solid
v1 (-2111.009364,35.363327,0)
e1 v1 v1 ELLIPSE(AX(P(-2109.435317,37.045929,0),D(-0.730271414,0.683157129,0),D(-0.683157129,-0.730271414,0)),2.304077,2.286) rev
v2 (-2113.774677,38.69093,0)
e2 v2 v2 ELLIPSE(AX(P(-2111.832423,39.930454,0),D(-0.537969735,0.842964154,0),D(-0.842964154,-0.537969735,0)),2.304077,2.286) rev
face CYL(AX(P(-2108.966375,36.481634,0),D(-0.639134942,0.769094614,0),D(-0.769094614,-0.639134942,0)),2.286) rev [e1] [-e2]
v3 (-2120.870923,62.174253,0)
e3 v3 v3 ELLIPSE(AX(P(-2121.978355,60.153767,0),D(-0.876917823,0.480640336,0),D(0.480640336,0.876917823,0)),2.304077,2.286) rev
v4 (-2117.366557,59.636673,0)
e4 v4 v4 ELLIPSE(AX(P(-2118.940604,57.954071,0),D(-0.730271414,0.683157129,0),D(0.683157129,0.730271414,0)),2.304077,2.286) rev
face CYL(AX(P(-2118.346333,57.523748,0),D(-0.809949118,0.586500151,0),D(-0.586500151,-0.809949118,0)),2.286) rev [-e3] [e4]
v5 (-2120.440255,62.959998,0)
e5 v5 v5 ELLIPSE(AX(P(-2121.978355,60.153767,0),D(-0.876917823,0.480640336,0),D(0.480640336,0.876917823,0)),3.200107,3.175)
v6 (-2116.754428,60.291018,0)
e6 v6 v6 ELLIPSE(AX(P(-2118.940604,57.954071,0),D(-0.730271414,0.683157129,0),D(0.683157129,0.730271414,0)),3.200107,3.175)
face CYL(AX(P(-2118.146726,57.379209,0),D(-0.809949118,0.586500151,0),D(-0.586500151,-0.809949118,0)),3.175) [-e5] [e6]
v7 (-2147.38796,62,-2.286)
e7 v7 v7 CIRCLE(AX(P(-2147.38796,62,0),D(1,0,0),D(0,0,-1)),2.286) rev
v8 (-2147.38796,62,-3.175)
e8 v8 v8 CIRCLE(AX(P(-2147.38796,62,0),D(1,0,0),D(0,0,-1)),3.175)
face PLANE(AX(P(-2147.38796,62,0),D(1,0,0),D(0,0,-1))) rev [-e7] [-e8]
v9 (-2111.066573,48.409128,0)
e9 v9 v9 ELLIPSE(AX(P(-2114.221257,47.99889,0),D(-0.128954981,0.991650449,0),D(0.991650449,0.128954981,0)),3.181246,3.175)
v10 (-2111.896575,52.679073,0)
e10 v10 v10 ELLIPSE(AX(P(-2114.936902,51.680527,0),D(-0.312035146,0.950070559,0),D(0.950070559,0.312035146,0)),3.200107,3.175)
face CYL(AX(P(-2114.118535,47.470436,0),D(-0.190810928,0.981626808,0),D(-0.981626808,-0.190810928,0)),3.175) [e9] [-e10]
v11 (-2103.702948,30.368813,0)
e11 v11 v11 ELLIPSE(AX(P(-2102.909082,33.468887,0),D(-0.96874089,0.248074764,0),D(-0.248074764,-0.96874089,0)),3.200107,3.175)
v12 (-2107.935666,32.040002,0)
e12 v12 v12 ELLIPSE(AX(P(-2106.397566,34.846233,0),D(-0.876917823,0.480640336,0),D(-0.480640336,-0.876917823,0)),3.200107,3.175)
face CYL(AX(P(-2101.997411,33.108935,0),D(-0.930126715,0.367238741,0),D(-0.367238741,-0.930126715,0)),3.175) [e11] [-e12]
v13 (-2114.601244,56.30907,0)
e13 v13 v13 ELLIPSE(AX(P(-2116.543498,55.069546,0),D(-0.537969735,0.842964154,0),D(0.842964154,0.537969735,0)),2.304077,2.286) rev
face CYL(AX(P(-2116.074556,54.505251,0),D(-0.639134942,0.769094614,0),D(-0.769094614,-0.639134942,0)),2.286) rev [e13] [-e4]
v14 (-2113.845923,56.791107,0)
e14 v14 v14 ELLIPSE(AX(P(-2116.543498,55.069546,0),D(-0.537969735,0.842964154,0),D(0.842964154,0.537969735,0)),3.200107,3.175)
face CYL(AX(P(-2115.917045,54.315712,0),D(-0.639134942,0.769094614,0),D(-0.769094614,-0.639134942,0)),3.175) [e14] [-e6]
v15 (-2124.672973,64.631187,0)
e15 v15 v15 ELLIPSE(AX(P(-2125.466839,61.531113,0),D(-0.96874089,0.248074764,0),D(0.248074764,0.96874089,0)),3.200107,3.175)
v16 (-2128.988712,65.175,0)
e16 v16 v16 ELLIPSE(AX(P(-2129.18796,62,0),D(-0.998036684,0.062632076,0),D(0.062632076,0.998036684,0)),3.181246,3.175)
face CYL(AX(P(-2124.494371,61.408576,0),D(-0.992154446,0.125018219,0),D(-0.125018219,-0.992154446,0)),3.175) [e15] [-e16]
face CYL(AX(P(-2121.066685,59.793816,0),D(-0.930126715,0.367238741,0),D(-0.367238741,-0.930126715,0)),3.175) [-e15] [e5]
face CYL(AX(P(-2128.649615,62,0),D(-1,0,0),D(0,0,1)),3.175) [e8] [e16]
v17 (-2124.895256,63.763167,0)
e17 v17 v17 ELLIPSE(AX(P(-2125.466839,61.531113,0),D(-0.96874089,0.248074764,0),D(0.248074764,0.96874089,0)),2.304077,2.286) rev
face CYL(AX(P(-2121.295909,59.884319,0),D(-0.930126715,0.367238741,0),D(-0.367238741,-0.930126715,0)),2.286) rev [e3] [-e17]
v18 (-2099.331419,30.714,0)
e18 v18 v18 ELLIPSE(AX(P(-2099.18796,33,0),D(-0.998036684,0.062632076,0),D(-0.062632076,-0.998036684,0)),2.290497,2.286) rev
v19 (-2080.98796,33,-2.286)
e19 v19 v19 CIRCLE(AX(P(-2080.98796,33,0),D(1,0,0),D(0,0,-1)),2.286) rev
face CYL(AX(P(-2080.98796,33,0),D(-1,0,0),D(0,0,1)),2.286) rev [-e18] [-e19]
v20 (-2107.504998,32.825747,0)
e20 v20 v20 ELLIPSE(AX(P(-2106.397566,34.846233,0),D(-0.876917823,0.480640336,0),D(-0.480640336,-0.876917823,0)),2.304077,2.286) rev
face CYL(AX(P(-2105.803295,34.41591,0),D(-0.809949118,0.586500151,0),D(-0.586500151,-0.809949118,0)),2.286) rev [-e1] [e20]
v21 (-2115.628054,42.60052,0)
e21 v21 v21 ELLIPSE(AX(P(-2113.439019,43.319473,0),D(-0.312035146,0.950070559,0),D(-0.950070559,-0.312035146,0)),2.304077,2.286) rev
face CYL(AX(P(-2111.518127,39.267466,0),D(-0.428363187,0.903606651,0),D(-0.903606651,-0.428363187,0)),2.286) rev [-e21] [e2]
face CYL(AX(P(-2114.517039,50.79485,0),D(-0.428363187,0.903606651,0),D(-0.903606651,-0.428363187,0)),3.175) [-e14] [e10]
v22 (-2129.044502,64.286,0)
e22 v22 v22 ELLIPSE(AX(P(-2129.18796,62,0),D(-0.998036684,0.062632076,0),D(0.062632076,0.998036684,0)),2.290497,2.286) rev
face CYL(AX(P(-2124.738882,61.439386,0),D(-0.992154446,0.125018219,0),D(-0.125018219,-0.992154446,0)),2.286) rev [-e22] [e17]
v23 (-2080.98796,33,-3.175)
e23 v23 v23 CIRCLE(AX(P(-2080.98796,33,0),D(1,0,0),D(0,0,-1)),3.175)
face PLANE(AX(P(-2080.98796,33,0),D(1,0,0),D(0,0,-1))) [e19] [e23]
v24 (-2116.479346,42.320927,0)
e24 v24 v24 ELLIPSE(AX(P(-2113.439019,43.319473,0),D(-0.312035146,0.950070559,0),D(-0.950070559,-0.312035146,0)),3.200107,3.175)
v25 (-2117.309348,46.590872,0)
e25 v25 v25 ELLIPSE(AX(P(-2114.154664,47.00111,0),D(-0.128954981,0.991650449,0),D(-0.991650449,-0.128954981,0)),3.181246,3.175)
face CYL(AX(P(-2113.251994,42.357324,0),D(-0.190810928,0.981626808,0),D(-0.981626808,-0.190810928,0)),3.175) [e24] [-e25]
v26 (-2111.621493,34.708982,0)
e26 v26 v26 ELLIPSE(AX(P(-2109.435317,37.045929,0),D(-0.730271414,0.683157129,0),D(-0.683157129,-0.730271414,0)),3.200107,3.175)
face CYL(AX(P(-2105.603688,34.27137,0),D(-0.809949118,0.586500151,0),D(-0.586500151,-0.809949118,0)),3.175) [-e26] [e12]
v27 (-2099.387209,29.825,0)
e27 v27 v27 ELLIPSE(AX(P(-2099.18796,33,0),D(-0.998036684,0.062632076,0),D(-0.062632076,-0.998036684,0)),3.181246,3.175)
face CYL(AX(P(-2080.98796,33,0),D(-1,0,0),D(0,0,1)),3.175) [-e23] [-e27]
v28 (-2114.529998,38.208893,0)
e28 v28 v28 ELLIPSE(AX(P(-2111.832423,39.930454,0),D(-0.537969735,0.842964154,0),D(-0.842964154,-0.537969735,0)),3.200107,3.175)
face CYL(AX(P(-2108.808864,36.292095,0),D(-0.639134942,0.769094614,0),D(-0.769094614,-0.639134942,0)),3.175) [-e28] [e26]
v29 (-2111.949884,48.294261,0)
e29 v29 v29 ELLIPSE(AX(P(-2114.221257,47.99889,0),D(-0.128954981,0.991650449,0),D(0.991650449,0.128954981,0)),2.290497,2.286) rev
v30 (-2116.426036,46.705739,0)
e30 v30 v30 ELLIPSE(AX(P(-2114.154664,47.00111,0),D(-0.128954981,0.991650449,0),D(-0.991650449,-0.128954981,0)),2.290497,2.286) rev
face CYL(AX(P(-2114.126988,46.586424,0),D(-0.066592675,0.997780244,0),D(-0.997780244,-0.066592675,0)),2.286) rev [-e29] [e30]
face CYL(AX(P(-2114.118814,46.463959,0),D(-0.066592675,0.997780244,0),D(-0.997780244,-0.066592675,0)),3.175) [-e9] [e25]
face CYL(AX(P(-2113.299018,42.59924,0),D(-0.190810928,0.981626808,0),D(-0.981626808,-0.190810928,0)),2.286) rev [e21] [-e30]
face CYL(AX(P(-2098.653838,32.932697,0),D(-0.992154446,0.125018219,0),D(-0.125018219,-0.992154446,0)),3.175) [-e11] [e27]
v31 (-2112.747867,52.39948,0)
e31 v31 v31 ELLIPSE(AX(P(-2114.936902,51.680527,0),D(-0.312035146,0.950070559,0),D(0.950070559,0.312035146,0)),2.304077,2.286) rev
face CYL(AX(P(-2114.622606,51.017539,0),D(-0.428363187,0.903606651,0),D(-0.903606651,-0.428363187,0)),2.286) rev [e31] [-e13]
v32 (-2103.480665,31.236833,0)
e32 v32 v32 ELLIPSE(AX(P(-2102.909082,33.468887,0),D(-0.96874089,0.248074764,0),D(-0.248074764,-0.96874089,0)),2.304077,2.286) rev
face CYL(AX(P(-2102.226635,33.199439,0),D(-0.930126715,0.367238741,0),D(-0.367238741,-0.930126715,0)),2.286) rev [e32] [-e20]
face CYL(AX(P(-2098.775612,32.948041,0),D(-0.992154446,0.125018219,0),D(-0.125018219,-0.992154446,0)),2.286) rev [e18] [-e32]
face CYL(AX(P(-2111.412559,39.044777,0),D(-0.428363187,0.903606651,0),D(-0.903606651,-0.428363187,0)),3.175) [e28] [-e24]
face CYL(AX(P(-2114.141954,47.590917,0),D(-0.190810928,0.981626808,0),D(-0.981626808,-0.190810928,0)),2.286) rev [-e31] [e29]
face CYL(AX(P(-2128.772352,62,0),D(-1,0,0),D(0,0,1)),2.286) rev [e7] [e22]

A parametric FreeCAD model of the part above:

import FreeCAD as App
import Part
import Sketcher
from FreeCAD import Vector
Q = App.Units.Quantity

doc = App.newDocument("Part")
params = doc.addObject("Spreadsheet::Sheet", "Params")
for row, (alias, value) in enumerate([
    ("sketch1_diameter", "6.35 mm"),
    ("sketch2_length", "1 mm"),
    ("sketch2_width", "18.2 mm"),
], start=1):
    params.set(f"A{row}", alias)
    params.set(f"B{row}", "=" + value)
    params.setAlias(f"B{row}", alias)

body = doc.addObject("PartDesign::Body", "Body")

sketch1 = body.newObject("Sketcher::SketchObject", "Sketch")
sketch1.AttachmentSupport = (doc.getObject("YZ_Plane"), [""])
sketch1.MapMode = "FlatFace"
sketch1.AttachmentOffset = App.Placement(Vector(0, 0, -2080.98796), App.Rotation())
sketch1.addGeometry([
    Part.Circle(Vector(33, 0, 0), Vector(0, 0, 1), 3.175),
    Part.Circle(Vector(33, 0, 0), Vector(0, 0, 1), 2.286),
], False)
sketch1.addConstraint([
    Sketcher.Constraint("Coincident", 1, 3, 0, 3),
    Sketcher.Constraint("PointOnObject", 0, 3, -1),
    Sketcher.Constraint("Diameter", 0, Q("6.35 mm")),
    Sketcher.Constraint("Diameter", 1, Q("4.572 mm")),
    Sketcher.Constraint("DistanceX", -1, 1, 0, 3, Q("33 mm")),
])
sketch1.setExpression("Constraints[2]", "Params.sketch1_diameter")

sketch2 = body.newObject("Sketcher::SketchObject", "Sketch001")
sketch2.AttachmentSupport = (doc.getObject("XY_Plane"), [""])
sketch2.MapMode = "FlatFace"
sketch2.addGeometry([
    Part.LineSegment(Vector(-2080.98796, 33, 0), Vector(-2099.18796, 33, 0)),
    Part.LineSegment(Vector(-2099.18796, 33, 0), Vector(-2102.909082, 33.468887, 0)),
    Part.LineSegment(Vector(-2102.909082, 33.468887, 0), Vector(-2106.397566, 34.846233, 0)),
    Part.LineSegment(Vector(-2106.397566, 34.846233, 0), Vector(-2109.435317, 37.045929, 0)),
    Part.LineSegment(Vector(-2109.435317, 37.045929, 0), Vector(-2111.832423, 39.930454, 0)),
    Part.LineSegment(Vector(-2111.832423, 39.930454, 0), Vector(-2113.439019, 43.319473, 0)),
    Part.LineSegment(Vector(-2113.439019, 43.319473, 0), Vector(-2114.154664, 47.00111, 0)),
    Part.LineSegment(Vector(-2114.154664, 47.00111, 0), Vector(-2114.221257, 47.99889, 0)),
    Part.LineSegment(Vector(-2114.221257, 47.99889, 0), Vector(-2114.936902, 51.680527, 0)),
    Part.LineSegment(Vector(-2114.936902, 51.680527, 0), Vector(-2116.543498, 55.069546, 0)),
    Part.LineSegment(Vector(-2116.543498, 55.069546, 0), Vector(-2118.940604, 57.954071, 0)),
    Part.LineSegment(Vector(-2118.940604, 57.954071, 0), Vector(-2121.978355, 60.153767, 0)),
    Part.LineSegment(Vector(-2121.978355, 60.153767, 0), Vector(-2125.466839, 61.531113, 0)),
    Part.LineSegment(Vector(-2125.466839, 61.531113, 0), Vector(-2129.18796, 62, 0)),
    Part.LineSegment(Vector(-2129.18796, 62, 0), Vector(-2147.38796, 62, 0)),
], False)
sketch2.addConstraint([
    Sketcher.Constraint("Coincident", 0, 2, 1, 1),
    Sketcher.Constraint("Coincident", 1, 2, 2, 1),
    Sketcher.Constraint("Coincident", 2, 2, 3, 1),
    Sketcher.Constraint("Coincident", 3, 2, 4, 1),
    Sketcher.Constraint("Coincident", 4, 2, 5, 1),
    Sketcher.Constraint("Coincident", 5, 2, 6, 1),
    Sketcher.Constraint("Coincident", 6, 2, 7, 1),
    Sketcher.Constraint("Coincident", 7, 2, 8, 1),
    Sketcher.Constraint("Coincident", 8, 2, 9, 1),
    Sketcher.Constraint("Coincident", 9, 2, 10, 1),
    Sketcher.Constraint("Coincident", 10, 2, 11, 1),
    Sketcher.Constraint("Coincident", 11, 2, 12, 1),
    Sketcher.Constraint("Coincident", 12, 2, 13, 1),
    Sketcher.Constraint("Coincident", 13, 2, 14, 1),
    Sketcher.Constraint("Horizontal", 0),
    Sketcher.Constraint("Horizontal", 14),
    Sketcher.Constraint("Parallel", 6, 8),
    Sketcher.Constraint("Parallel", 5, 9),
    Sketcher.Constraint("Parallel", 4, 10),
    Sketcher.Constraint("Parallel", 3, 11),
    Sketcher.Constraint("Parallel", 2, 12),
    Sketcher.Constraint("Parallel", 1, 13),
    Sketcher.Constraint("Equal", 0, 14),
    Sketcher.Constraint("Equal", 1, 2),
    Sketcher.Constraint("Equal", 2, 3),
    Sketcher.Constraint("Equal", 3, 4),
    Sketcher.Constraint("Equal", 4, 5),
    Sketcher.Constraint("Equal", 5, 6),
    Sketcher.Constraint("Equal", 6, 8),
    Sketcher.Constraint("Equal", 8, 9),
    Sketcher.Constraint("Equal", 9, 10),
    Sketcher.Constraint("Equal", 10, 11),
    Sketcher.Constraint("Equal", 11, 12),
    Sketcher.Constraint("Equal", 12, 13),
    Sketcher.Constraint("Distance", 7, Q("1 mm")),
    Sketcher.Constraint("DistanceX", 0, 2, 0, 1, Q("18.2 mm")),
    Sketcher.Constraint("DistanceY", -1, 1, 0, 1, Q("33 mm")),
    Sketcher.Constraint("DistanceY", -1, 1, 13, 2, Q("62 mm")),
    Sketcher.Constraint("DistanceX", 9, 2, -1, 1, Q("2116.543498 mm")),
    Sketcher.Constraint("DistanceX", 5, 2, 3, 2, Q("4.003701 mm")),
    Sketcher.Constraint("DistanceX", 6, 2, 2, 2, Q("7.757099 mm")),
    Sketcher.Constraint("DistanceY", 3, 2, 8, 2, Q("14.634598 mm")),
    Sketcher.Constraint("DistanceX", 0, 1, -1, 1, Q("2080.98796 mm")),
    Sketcher.Constraint("DistanceX", 1, 2, -1, 1, Q("2102.909082 mm")),
    Sketcher.Constraint("DistanceY", -1, 1, 3, 2, Q("37.045929 mm")),
    Sketcher.Constraint("DistanceX", 5, 2, -1, 1, Q("2113.439019 mm")),
])
sketch2.setExpression("Constraints[34]", "Params.sketch2_length")
sketch2.setExpression("Constraints[35]", "Params.sketch2_width")
doc.recompute()

additivepipe = body.newObject("PartDesign::AdditivePipe", "AdditivePipe")
additivepipe.Profile = sketch1
additivepipe.Spine = (sketch2, ["Edge1", "Edge2", "Edge3", "Edge4", "Edge5", "Edge6", "Edge7", "Edge8", "Edge9", "Edge10", "Edge11", "Edge12", "Edge13", "Edge14", "Edge15"])
additivepipe.Transition = "Right corner"

doc.recompute()
